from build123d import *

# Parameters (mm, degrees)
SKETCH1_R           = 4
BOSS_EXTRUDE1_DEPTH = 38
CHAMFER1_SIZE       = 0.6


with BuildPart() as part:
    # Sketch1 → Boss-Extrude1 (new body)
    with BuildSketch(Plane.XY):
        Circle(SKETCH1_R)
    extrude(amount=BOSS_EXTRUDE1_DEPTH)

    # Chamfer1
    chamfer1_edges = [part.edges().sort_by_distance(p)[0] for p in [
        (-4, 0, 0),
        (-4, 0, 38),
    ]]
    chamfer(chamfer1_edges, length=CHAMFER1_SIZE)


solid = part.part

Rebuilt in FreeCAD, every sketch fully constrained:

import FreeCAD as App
import Part
import Sketcher


def edges_at(feature, points):
    """Names of the edges that pass closest to the given points."""
    edges = feature.Shape.Edges
    near = lambda p: min(range(len(edges)), key=lambda i: edges[i].distToShape(Part.Vertex(*p))[0])
    return sorted({f"Edge{near(p) + 1}" for p in points})

doc = App.newDocument("Part")
body = doc.addObject("PartDesign::Body", "Body")

# Sketch on XY plane
sketch1 = doc.addObject("Sketcher::SketchObject", "Sketch")
body.addObject(sketch1)
sketch1.AttachmentSupport = (doc.XY_Plane, [""])
sketch1.MapMode = "FlatFace"
sketch1.addGeometry(Part.Circle(App.Vector(0, 0, 0), App.Vector(0, 0, 1), 4), False)
sketch1.addConstraint([
    Sketcher.Constraint("Coincident", 0, 3, -1, 1),
    Sketcher.Constraint("Diameter", 0, 8.0),
])
pad1 = doc.addObject("PartDesign::Pad", "Pad")
body.addObject(pad1)
pad1.Profile = sketch1
pad1.Length = 38
doc.recompute()

chamfer = doc.addObject("PartDesign::Chamfer", "Chamfer")
body.addObject(chamfer)
chamfer.Base = (pad1, edges_at(pad1, [(-4, 0, 0), (-4, 0, 38)]))
chamfer.Size = 0.6

doc.recompute()
